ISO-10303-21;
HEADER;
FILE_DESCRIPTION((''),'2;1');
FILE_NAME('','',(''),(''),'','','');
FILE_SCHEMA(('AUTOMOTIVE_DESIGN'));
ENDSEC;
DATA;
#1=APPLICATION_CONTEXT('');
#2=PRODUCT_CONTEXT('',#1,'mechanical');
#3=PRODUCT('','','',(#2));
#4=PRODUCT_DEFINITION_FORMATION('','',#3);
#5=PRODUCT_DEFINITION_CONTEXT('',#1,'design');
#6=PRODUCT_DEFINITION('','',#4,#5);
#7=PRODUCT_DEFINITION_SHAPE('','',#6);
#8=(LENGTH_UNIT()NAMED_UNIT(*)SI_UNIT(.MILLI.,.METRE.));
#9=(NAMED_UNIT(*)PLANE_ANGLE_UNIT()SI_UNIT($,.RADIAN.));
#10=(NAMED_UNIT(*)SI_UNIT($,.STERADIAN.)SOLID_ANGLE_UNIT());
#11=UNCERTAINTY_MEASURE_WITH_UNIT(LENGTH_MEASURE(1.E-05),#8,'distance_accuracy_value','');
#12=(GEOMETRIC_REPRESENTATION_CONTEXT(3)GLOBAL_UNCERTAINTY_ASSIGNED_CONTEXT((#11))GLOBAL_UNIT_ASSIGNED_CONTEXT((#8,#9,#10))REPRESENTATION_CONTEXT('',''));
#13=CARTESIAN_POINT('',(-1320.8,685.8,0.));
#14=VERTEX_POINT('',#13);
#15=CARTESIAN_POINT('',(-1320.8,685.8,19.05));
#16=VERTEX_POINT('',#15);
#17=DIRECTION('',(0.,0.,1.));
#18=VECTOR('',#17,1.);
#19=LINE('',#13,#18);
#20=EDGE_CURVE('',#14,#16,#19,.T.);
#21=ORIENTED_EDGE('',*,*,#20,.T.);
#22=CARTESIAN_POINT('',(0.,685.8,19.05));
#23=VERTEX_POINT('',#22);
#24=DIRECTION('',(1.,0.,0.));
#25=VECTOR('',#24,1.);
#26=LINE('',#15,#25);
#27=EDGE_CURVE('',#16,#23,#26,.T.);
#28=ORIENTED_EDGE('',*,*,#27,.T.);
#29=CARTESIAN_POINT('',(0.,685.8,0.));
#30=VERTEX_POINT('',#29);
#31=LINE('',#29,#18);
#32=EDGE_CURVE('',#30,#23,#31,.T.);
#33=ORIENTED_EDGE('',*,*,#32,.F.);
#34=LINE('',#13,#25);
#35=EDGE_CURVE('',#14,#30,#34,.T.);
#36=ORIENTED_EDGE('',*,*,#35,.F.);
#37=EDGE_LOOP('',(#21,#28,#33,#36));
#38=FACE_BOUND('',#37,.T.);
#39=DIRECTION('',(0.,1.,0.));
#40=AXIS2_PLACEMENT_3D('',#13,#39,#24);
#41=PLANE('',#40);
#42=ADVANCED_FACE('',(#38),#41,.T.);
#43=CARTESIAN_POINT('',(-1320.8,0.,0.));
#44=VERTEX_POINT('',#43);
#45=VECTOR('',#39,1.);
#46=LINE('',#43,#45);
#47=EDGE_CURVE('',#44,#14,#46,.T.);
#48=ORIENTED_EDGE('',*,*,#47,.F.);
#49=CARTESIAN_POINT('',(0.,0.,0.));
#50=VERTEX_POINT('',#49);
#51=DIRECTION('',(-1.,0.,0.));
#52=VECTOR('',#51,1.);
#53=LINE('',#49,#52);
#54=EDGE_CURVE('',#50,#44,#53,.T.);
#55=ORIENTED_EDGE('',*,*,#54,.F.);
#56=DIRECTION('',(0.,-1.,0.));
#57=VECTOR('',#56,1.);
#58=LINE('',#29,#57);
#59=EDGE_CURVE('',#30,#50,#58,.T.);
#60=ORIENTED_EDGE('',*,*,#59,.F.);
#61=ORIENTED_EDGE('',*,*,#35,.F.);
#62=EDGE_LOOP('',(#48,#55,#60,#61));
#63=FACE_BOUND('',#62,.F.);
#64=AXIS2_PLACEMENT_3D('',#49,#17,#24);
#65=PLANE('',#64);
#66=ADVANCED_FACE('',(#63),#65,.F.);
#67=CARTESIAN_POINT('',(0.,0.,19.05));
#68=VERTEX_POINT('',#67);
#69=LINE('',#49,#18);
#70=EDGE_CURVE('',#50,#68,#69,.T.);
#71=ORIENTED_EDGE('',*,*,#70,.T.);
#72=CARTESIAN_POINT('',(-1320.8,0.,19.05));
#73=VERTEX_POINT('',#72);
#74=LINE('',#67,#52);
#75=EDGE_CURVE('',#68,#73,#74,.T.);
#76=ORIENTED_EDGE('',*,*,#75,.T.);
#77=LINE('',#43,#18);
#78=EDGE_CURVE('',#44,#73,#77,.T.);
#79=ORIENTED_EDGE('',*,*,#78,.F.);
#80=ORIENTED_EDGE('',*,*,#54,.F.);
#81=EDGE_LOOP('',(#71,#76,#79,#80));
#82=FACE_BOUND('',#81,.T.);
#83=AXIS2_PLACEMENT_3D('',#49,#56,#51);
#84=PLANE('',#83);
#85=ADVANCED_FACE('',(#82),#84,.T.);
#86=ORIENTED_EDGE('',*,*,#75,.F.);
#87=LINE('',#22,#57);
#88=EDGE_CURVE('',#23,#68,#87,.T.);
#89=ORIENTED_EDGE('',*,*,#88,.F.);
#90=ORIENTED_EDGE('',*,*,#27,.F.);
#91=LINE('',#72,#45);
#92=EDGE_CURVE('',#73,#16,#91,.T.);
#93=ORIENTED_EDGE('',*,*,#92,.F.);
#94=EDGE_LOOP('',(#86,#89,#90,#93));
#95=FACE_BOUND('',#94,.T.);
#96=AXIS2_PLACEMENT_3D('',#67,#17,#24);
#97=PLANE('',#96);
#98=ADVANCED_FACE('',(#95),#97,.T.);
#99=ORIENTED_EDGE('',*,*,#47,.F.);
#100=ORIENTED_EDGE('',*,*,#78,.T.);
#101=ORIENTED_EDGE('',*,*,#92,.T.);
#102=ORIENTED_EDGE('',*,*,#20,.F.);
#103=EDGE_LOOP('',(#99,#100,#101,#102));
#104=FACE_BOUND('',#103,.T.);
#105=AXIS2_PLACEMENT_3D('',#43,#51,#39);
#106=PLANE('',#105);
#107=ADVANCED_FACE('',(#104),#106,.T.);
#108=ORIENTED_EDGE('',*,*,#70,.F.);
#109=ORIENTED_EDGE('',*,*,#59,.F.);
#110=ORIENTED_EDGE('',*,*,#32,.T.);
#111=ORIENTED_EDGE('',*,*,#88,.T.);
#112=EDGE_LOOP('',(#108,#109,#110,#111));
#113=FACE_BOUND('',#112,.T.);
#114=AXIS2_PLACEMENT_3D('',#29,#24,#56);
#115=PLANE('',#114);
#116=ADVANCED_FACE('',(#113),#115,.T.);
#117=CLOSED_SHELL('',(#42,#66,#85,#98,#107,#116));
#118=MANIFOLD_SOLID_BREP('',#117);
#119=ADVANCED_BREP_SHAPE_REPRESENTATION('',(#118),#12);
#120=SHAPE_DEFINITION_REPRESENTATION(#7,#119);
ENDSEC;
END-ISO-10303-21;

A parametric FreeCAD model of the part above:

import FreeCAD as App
import Part
import Sketcher
Q = App.Units.Quantity


def add_polygon(sketch, points):
    """Adds a closed chain of lines whose ends are joined by coincident constraints."""
    first, n = sketch.GeometryCount, len(points)
    for a, b in zip(points, points[1:] + points[:1]):
        sketch.addGeometry(Part.LineSegment(App.Vector(*a, 0), App.Vector(*b, 0)), False)
    for i in range(n):
        sketch.addConstraint(Sketcher.Constraint("Coincident", first + i, 2, first + (i + 1) % n, 1))

doc = App.newDocument("Part")
body = doc.addObject("PartDesign::Body", "Body")

sketch1 = body.newObject("Sketcher::SketchObject", "Sketch")
sketch1.AttachmentSupport = (doc.getObject("XY_Plane"), [""])
sketch1.MapMode = "FlatFace"
add_polygon(sketch1, [(-1321, 0), (0, 0), (0, 686), (-1321, 686)])
sketch1.addConstraint([
    Sketcher.Constraint("Horizontal", 0),
    Sketcher.Constraint("Vertical", 1),
    Sketcher.Constraint("Horizontal", 2),
    Sketcher.Constraint("Vertical", 3),
    Sketcher.Constraint("Coincident", 0, 2, -1, 1),
    Sketcher.Constraint("DistanceX", 0, 1, 0, 2, Q("52 in")),
    Sketcher.Constraint("DistanceY", 1, 1, 1, 2, Q("27 in")),
])
pad1 = body.newObject("PartDesign::Pad", "Pad")
pad1.Profile = sketch1
pad1.Length = Q("0.75 in")

doc.recompute()
